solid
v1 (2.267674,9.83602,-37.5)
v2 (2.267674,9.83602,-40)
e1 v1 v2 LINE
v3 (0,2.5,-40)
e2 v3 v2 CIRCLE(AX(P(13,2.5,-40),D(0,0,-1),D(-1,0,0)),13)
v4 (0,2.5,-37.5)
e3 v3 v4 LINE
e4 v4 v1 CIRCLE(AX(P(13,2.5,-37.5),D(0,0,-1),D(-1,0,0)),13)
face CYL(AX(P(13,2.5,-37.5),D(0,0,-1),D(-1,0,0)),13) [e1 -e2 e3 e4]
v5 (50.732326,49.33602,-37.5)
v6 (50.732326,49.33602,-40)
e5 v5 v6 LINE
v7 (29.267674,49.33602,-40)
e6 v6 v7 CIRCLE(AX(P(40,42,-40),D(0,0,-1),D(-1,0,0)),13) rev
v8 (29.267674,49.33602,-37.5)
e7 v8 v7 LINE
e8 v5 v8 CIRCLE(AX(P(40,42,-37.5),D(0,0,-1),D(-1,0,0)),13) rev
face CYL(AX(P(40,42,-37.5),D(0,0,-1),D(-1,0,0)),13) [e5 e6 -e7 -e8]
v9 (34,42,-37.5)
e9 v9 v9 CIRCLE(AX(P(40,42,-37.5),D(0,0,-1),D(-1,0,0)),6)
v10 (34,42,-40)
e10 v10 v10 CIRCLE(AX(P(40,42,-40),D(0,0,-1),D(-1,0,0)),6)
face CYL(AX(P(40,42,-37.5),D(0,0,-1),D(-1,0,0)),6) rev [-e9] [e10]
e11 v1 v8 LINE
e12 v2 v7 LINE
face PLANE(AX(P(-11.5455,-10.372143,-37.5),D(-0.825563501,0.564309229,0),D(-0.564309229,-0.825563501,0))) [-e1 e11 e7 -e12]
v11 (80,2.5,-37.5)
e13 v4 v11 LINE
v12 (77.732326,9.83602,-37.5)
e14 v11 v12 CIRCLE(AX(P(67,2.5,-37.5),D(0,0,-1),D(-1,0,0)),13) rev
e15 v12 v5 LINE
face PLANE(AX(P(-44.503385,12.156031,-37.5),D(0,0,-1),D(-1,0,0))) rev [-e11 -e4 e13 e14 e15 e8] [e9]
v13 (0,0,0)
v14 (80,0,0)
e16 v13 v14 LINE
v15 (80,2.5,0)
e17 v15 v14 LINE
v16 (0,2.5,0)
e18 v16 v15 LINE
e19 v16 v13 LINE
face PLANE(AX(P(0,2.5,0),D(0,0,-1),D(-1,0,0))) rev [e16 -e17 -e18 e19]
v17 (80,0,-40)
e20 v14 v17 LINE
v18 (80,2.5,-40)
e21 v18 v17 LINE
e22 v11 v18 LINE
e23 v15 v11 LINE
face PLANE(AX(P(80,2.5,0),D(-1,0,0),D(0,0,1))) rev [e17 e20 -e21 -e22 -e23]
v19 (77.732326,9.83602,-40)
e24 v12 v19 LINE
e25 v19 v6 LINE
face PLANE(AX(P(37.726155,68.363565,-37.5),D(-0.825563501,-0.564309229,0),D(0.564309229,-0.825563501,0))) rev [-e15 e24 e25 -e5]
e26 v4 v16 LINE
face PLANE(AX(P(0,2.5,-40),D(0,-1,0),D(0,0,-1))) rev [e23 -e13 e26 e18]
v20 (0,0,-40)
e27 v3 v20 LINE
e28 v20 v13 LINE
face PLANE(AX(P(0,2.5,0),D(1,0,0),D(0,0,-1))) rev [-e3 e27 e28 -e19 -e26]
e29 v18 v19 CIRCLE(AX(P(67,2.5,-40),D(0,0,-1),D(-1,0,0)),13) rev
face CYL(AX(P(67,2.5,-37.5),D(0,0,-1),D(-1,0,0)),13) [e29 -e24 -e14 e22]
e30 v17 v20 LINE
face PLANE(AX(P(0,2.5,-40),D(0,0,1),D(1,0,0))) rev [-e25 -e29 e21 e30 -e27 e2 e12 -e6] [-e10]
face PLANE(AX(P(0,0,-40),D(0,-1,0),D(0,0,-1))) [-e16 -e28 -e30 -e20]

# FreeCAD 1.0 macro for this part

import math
import FreeCAD as App
import Part
import Sketcher


def add_polygon(sketch, points):
    """Adds a closed chain of lines whose ends are joined by coincident constraints."""
    first, n = sketch.GeometryCount, len(points)
    for a, b in zip(points, points[1:] + points[:1]):
        sketch.addGeometry(Part.LineSegment(App.Vector(*a, 0), App.Vector(*b, 0)), False)
    for i in range(n):
        sketch.addConstraint(Sketcher.Constraint("Coincident", first + i, 2, first + (i + 1) % n, 1))

doc = App.newDocument("Part")
body = doc.addObject("PartDesign::Body", "Body")

# Sketch on XZ plane
sketch1 = body.newObject("Sketcher::SketchObject", "Sketch")
sketch1.AttachmentSupport = (doc.getObject("XZ_Plane"), [""])
sketch1.MapMode = "FlatFace"
add_polygon(sketch1, [(0, -40), (0, 0), (80, 0), (80, -40)])  # lines 0-3
sketch1.addConstraint(Sketcher.Constraint("Vertical", 0))
sketch1.addConstraint(Sketcher.Constraint("Horizontal", 1))
sketch1.addConstraint(Sketcher.Constraint("Vertical", 2))
sketch1.addConstraint(Sketcher.Constraint("Horizontal", 3))
sketch1.addConstraint(Sketcher.Constraint("Coincident", 0, 2, -1, 1))
sketch1.addConstraint(Sketcher.Constraint("DistanceX", 1, 1, 1, 2, 80.0))
sketch1.addConstraint(Sketcher.Constraint("DistanceY", 0, 1, 0, 2, 40.0))
pad1 = body.newObject("PartDesign::Pad", "Pad")
pad1.Profile = sketch1
pad1.Length = 2.5
pad1.Reversed = True

# Sketch on XY plane
sketch2 = body.newObject("Sketcher::SketchObject", "Sketch001")
sketch2.AttachmentSupport = (doc.getObject("XY_Plane"), [""])
sketch2.MapMode = "FlatFace"
sketch2.AttachmentOffset = App.Placement(App.Vector(0, 0, -40), App.Rotation())
sketch2.addGeometry(Part.ArcOfCircle(Part.Circle(App.Vector(13, 2, 0), App.Vector(0, 0, 1), 13), math.radians(146), math.radians(180)), False)
sketch2.addGeometry(Part.LineSegment(App.Vector(2, 10, 0), App.Vector(29, 49, 0)), False)
sketch2.addGeometry(Part.ArcOfCircle(Part.Circle(App.Vector(40, 42, 0), App.Vector(0, 0, 1), 13), math.radians(34), math.radians(146)), False)
sketch2.addGeometry(Part.LineSegment(App.Vector(51, 49, 0), App.Vector(78, 10, 0)), False)
sketch2.addGeometry(Part.ArcOfCircle(Part.Circle(App.Vector(67, 2, 0), App.Vector(0, 0, 1), 13), math.radians(0), math.radians(34)), False)
sketch2.addGeometry(Part.LineSegment(App.Vector(80, 2, 0), App.Vector(0, 2, 0)), False)
sketch2.addGeometry(Part.Circle(App.Vector(40, 42, 0), App.Vector(0, 0, 1), 6), False)
sketch2.addConstraint(Sketcher.Constraint("Tangent", 0, 1, 1, 1))
sketch2.addConstraint(Sketcher.Constraint("Tangent", 1, 2, 2, 2))
sketch2.addConstraint(Sketcher.Constraint("Tangent", 2, 1, 3, 1))
sketch2.addConstraint(Sketcher.Constraint("Tangent", 3, 2, 4, 2))
sketch2.addConstraint(Sketcher.Constraint("Coincident", 4, 1, 5, 1))
sketch2.addConstraint(Sketcher.Constraint("Coincident", 5, 2, 0, 2))
sketch2.addConstraint(Sketcher.Constraint("Horizontal", 5))
sketch2.addConstraint(Sketcher.Constraint("Coincident", 6, 3, 2, 3))
sketch2.addConstraint(Sketcher.Constraint("Equal", 0, 2))
sketch2.addConstraint(Sketcher.Constraint("Equal", 2, 4))
sketch2.addConstraint(Sketcher.Constraint("PointOnObject", 5, 2, -2))
sketch2.addConstraint(Sketcher.Constraint("Horizontal", 0, 3, 4, 3))
sketch2.addConstraint(Sketcher.Constraint("Horizontal", 1, 2, 2, 1))
sketch2.addConstraint(Sketcher.Constraint("Horizontal", 0, 3, 4, 1))
sketch2.addConstraint(Sketcher.Constraint("Diameter", 6, 12.0))
sketch2.addConstraint(Sketcher.Constraint("Radius", 0, 13.0))
sketch2.addConstraint(Sketcher.Constraint("DistanceX", 5, 2, 5, 1, 80.0))
sketch2.addConstraint(Sketcher.Constraint("DistanceY", -1, 1, 2, 3, 42.0))
sketch2.addConstraint(Sketcher.Constraint("DistanceY", -1, 1, 0, 3, 2.5))
pad2 = body.newObject("PartDesign::Pad", "Pad001")
pad2.Profile = sketch2
pad2.Length = 2.5

doc.recompute()
